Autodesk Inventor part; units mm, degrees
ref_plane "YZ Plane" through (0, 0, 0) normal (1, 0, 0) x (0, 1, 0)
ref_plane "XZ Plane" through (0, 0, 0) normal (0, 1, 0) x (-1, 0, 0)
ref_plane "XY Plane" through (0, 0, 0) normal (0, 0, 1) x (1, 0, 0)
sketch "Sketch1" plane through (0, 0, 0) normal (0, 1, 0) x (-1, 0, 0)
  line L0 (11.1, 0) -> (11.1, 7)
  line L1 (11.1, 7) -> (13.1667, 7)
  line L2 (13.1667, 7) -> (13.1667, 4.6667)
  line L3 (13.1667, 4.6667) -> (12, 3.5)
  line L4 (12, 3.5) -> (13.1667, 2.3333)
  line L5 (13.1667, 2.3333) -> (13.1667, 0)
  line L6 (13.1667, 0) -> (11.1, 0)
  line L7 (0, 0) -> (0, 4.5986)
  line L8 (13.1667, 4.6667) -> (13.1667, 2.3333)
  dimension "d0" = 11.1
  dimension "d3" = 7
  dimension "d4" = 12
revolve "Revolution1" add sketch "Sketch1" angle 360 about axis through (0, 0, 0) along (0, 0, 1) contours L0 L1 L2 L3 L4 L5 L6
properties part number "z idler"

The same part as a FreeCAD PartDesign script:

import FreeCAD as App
import Part
import Sketcher

V = App.Vector
Q = App.Units.Quantity


def add_polygon(sketch, points):
    """Adds a closed chain of lines whose ends are joined by coincident constraints."""
    first, n = sketch.GeometryCount, len(points)
    for a, b in zip(points, points[1:] + points[:1]):
        sketch.addGeometry(Part.LineSegment(App.Vector(*a, 0), App.Vector(*b, 0)), False)
    for i in range(n):
        sketch.addConstraint(Sketcher.Constraint("Coincident", first + i, 2, first + (i + 1) % n, 1))

doc = App.newDocument("Part")
body = doc.addObject("PartDesign::Body", "Body")

# Sketch on XZ plane
sketch1 = body.newObject("Sketcher::SketchObject", "Sketch")
sketch1.AttachmentSupport = (doc.getObject("XZ_Plane"), [""])
sketch1.MapMode = "FlatFace"
add_polygon(sketch1, [(-11.1, 7), (-11.1, 0), (-13.2, 0), (-13.2, 2.3), (-12, 3.5), (-13.2, 4.7), (-13.2, 7)])  # lines 0-6
sketch1.addConstraint([
    Sketcher.Constraint("Vertical", 0),
    Sketcher.Constraint("Horizontal", 1),
    Sketcher.Constraint("Vertical", 2),
    Sketcher.Constraint("Vertical", 5),
    Sketcher.Constraint("Horizontal", 6),
    Sketcher.Constraint("PointOnObject", 0, 2, -1),
    Sketcher.Constraint("Perpendicular", 3, 4),
    Sketcher.Constraint("Vertical", 2, 2, 4, 2),
    Sketcher.Constraint("Equal", 2, 5),
    Sketcher.Constraint("Equal", 3, 4),
    Sketcher.Constraint("DistanceY", 0, 2, 0, 1, Q("7 mm")),
    Sketcher.Constraint("DistanceX", 3, 2, -1, 1, Q("12 mm")),
    Sketcher.Constraint("DistanceX", 0, 2, -1, 1, Q("11.1 mm")),
    Sketcher.Constraint("Distance", 3, Q("1.65 mm")),
])
revolution = body.newObject("PartDesign::Revolution", "Revolution")
revolution.Profile = sketch1
revolution.ReferenceAxis = (sketch1, ["V_Axis"])
revolution.Angle = 360

doc.recompute()
